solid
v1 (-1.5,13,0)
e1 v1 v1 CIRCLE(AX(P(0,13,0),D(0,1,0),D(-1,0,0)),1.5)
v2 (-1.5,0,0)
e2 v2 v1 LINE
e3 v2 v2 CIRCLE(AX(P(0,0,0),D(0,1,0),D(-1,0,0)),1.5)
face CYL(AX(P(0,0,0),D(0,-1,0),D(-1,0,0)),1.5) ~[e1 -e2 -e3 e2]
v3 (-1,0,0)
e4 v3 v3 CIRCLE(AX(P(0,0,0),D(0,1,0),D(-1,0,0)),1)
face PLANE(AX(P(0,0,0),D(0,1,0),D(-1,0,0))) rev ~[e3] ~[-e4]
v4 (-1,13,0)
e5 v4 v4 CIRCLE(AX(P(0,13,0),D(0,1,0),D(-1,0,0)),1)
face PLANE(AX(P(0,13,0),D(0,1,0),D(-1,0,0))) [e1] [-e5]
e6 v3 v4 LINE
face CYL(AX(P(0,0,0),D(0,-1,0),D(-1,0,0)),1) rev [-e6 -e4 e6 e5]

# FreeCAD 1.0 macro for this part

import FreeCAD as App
import Part
import Sketcher

V = App.Vector

doc = App.newDocument("Part")
body = doc.addObject("PartDesign::Body", "Body")

# Sketch on XZ plane
sketch1 = body.newObject("Sketcher::SketchObject", "Sketch")
sketch1.AttachmentSupport = (doc.getObject("XZ_Plane"), [""])
sketch1.MapMode = "FlatFace"
sketch1.addGeometry([
    Part.Circle(V(0, 0, 0), V(0, 0, 1), 1.5),
    Part.Circle(V(0, 0, 0), V(0, 0, 1), 1),
], False)
sketch1.addConstraint([
    Sketcher.Constraint("Coincident", 0, 3, -1, 1),
    Sketcher.Constraint("Coincident", 1, 3, -1, 1),
    Sketcher.Constraint("Diameter", 0, 3.0),
    Sketcher.Constraint("Diameter", 1, 2.0),
])
pad1 = body.newObject("PartDesign::Pad", "Pad")
pad1.Profile = sketch1
pad1.Length = 13
pad1.Reversed = True

doc.recompute()
